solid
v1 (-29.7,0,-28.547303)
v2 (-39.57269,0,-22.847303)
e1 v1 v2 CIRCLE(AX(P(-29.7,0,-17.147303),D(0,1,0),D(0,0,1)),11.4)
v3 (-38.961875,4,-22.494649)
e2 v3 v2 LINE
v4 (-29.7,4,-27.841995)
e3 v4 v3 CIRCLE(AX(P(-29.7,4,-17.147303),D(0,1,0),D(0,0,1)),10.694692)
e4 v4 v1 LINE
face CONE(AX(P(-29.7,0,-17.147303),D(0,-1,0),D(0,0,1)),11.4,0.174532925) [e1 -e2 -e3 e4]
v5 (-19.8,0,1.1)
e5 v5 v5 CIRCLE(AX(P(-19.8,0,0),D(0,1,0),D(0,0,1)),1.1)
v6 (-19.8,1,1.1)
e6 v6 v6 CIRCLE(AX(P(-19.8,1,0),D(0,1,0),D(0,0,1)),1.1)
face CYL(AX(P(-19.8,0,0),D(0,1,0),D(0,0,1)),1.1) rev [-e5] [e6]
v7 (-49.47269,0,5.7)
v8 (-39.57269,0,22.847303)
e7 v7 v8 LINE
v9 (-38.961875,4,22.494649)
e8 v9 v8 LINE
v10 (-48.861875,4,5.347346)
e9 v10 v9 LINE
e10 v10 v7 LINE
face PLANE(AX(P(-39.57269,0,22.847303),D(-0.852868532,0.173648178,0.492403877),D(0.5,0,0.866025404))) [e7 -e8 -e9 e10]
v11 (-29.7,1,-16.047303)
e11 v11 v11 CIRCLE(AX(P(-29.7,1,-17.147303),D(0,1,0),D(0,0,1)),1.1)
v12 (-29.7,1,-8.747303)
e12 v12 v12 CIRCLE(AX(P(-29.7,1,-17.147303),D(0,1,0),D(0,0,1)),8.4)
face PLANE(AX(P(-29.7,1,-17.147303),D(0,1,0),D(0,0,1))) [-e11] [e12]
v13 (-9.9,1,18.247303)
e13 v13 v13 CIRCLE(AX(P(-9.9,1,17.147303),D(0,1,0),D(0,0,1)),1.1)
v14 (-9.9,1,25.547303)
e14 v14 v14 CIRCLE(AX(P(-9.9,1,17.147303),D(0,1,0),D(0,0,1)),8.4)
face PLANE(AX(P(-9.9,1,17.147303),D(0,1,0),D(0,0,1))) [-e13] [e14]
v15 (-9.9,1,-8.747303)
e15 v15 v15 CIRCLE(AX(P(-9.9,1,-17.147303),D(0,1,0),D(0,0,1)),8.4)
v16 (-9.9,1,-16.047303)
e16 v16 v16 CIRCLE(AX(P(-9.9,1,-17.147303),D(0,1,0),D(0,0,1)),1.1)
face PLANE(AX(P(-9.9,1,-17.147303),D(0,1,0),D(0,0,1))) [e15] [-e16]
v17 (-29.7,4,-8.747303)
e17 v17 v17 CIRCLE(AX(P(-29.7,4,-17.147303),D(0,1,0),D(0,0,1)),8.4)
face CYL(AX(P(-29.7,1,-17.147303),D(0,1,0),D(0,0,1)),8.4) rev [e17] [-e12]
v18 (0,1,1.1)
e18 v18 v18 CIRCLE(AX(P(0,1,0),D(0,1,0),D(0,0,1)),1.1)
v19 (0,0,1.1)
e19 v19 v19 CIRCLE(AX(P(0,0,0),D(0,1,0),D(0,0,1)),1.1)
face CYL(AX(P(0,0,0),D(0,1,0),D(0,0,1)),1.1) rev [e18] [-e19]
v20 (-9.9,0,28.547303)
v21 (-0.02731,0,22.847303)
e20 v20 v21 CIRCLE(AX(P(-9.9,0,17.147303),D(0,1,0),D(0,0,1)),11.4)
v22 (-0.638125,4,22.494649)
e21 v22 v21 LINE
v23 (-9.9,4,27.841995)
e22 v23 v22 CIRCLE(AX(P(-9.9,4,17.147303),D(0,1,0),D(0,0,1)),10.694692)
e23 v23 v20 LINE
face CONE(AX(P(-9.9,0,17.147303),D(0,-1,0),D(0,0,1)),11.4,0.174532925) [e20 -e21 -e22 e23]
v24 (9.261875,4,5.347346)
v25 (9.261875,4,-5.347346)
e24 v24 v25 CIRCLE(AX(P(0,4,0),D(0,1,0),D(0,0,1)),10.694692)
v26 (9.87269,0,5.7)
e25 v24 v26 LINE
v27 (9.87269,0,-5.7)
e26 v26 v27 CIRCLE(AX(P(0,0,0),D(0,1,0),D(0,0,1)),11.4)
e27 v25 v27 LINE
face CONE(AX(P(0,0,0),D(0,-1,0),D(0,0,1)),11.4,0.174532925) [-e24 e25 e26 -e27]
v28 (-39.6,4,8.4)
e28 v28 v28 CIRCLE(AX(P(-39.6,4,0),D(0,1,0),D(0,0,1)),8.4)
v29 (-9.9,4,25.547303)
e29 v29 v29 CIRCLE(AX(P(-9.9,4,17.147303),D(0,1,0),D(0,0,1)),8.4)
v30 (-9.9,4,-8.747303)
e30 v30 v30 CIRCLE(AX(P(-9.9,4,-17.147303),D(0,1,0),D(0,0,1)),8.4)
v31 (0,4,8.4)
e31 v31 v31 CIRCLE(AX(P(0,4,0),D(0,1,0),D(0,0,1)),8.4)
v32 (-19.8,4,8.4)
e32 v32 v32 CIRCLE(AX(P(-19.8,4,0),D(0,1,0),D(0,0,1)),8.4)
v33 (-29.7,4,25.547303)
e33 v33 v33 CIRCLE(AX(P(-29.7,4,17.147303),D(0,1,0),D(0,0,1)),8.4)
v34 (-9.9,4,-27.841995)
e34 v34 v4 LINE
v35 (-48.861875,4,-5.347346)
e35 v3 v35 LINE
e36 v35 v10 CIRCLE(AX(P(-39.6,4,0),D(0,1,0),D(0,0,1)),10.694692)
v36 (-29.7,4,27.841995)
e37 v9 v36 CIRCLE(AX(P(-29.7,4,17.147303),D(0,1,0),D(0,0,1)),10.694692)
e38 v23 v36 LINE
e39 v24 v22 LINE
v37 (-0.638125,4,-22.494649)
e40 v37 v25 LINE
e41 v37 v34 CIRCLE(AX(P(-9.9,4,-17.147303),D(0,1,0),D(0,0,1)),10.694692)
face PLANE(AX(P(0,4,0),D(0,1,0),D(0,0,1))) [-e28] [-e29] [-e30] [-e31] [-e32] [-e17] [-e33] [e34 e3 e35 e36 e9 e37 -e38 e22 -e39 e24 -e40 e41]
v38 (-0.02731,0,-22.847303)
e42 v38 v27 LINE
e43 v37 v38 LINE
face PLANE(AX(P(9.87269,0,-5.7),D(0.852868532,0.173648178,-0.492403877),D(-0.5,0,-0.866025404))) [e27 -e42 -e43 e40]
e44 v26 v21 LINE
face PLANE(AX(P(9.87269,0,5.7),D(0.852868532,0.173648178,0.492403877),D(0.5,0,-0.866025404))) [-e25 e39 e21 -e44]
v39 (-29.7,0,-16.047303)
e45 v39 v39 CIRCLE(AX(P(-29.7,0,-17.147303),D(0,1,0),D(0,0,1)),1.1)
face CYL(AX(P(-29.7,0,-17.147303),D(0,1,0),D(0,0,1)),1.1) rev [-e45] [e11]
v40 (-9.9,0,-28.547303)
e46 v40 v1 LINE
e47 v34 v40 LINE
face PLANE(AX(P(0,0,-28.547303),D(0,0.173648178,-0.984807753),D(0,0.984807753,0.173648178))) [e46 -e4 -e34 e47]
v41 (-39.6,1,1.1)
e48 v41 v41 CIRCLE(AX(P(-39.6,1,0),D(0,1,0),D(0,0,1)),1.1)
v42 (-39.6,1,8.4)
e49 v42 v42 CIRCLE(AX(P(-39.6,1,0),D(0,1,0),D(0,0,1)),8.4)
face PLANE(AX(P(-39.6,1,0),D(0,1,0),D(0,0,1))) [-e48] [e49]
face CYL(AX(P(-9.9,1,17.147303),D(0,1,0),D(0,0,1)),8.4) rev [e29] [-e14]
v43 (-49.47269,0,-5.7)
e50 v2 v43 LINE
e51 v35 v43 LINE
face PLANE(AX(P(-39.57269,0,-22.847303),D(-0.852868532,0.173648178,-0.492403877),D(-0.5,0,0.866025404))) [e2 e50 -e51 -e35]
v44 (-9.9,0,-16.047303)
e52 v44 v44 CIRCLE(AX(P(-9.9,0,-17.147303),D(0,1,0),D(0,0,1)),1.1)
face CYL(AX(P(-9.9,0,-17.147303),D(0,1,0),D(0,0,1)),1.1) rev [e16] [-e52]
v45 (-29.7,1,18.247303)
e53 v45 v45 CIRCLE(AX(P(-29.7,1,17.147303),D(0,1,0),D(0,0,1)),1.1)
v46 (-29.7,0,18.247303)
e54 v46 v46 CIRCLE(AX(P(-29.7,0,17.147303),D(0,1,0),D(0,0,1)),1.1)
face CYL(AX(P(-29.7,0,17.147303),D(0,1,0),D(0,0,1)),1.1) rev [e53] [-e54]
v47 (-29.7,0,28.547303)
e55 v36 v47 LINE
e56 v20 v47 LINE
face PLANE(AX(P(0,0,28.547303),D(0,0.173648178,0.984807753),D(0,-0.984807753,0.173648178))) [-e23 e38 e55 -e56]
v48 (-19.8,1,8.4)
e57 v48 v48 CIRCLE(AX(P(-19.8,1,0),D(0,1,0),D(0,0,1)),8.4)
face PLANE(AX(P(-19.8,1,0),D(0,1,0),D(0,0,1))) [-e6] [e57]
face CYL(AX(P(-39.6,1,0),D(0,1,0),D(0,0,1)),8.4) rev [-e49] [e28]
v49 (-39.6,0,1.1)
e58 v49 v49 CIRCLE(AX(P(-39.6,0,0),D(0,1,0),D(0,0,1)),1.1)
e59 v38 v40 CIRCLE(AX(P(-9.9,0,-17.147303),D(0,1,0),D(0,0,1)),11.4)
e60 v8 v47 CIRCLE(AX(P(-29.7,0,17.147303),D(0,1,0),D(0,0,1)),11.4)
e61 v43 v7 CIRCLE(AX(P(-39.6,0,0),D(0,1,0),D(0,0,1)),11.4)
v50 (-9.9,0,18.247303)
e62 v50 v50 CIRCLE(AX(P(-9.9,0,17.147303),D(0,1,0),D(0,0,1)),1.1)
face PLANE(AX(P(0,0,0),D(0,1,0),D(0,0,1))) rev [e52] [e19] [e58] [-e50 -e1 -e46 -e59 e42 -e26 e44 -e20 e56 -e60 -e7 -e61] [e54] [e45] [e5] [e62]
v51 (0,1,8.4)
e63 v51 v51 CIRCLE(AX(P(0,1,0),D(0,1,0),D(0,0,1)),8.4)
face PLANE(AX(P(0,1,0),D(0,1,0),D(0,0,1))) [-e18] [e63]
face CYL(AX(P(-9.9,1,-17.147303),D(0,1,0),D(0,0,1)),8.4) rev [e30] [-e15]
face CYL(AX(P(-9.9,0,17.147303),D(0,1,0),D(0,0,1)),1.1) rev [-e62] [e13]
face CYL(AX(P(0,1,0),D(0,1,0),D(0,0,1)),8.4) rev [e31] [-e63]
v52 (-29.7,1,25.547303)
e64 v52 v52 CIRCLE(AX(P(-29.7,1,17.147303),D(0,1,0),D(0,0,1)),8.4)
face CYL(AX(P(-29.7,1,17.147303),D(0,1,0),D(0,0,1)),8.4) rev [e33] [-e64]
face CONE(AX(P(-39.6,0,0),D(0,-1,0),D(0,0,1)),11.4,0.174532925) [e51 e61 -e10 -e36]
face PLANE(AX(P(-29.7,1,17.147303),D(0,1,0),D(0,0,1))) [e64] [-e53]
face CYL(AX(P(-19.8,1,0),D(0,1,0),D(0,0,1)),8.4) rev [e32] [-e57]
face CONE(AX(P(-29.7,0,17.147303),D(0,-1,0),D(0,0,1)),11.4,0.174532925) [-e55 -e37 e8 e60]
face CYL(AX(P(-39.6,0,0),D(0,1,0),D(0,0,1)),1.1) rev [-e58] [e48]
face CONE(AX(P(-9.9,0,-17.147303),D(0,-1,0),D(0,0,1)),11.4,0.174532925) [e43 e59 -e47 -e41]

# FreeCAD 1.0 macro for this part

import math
import FreeCAD as App
import Part
import Sketcher
Q = App.Units.Quantity

doc = App.newDocument("Part")
params = doc.addObject("Spreadsheet::Sheet", "Params")
for row, (alias, value) in enumerate([
    ("sketch1_radius", "11.4 mm"),
    ("sketch1_width", "19.8 mm"),
    ("sketch1_length", "19.8 mm"),
    ("pad1_length", "4 mm"),
    ("pad1_taper", "-10 deg"),
    ("sketch2_diameter", "2.2 mm"),
    ("pocket1_length", "4 mm"),
    ("sketch3_diameter", "16.8 mm"),
    ("sketch3_diameter2", "2.2 mm"),
    ("pocket2_length", "3 mm"),
], start=1):
    params.set(f"A{row}", alias)
    params.set(f"B{row}", "=" + value)
    params.setAlias(f"B{row}", alias)

body = doc.addObject("PartDesign::Body", "Body")

sketch1 = body.newObject("Sketcher::SketchObject", "Sketch")
sketch1.AttachmentSupport = (doc.getObject("XZ_Plane"), [""])
sketch1.MapMode = "FlatFace"
sketch1.addGeometry([
    Part.ArcOfCircle(Part.Circle(App.Vector(-30, -17, 0), App.Vector(0, 0, 1), 11), math.radians(-150), math.radians(-90)),
    Part.LineSegment(App.Vector(-40, -23, 0), App.Vector(-49, -6, 0)),
    Part.ArcOfCircle(Part.Circle(App.Vector(-40, 0, 0), App.Vector(0, 0, 1), 11), math.radians(150), math.radians(210)),
    Part.LineSegment(App.Vector(-49, 6, 0), App.Vector(-40, 23, 0)),
    Part.ArcOfCircle(Part.Circle(App.Vector(-30, 17, 0), App.Vector(0, 0, 1), 11), math.radians(90), math.radians(150)),
    Part.LineSegment(App.Vector(-30, 29, 0), App.Vector(-10, 29, 0)),
    Part.ArcOfCircle(Part.Circle(App.Vector(-10, 17, 0), App.Vector(0, 0, 1), 11), math.radians(30), math.radians(90)),
    Part.LineSegment(App.Vector(0, 23, 0), App.Vector(10, 6, 0)),
    Part.ArcOfCircle(Part.Circle(App.Vector(0, 0, 0), App.Vector(0, 0, 1), 11), math.radians(-30), math.radians(30)),
    Part.LineSegment(App.Vector(10, -6, 0), App.Vector(0, -23, 0)),
    Part.ArcOfCircle(Part.Circle(App.Vector(-10, -17, 0), App.Vector(0, 0, 1), 11), math.radians(-90), math.radians(-30)),
    Part.LineSegment(App.Vector(-10, -29, 0), App.Vector(-30, -29, 0)),
], False)
sketch1.addConstraint([
    Sketcher.Constraint("Tangent", 0, 1, 1, 1),
    Sketcher.Constraint("Tangent", 1, 2, 2, 2),
    Sketcher.Constraint("Tangent", 2, 1, 3, 1),
    Sketcher.Constraint("Tangent", 3, 2, 4, 2),
    Sketcher.Constraint("Tangent", 4, 1, 5, 1),
    Sketcher.Constraint("Tangent", 5, 2, 6, 2),
    Sketcher.Constraint("Tangent", 6, 1, 7, 1),
    Sketcher.Constraint("Tangent", 7, 2, 8, 2),
    Sketcher.Constraint("Tangent", 8, 1, 9, 1),
    Sketcher.Constraint("Tangent", 9, 2, 10, 2),
    Sketcher.Constraint("Tangent", 10, 1, 11, 1),
    Sketcher.Constraint("Tangent", 11, 2, 0, 2),
    Sketcher.Constraint("Horizontal", 5),
    Sketcher.Constraint("Horizontal", 11),
    Sketcher.Constraint("Coincident", 8, 3, -1, 1),
    Sketcher.Constraint("Equal", 0, 2),
    Sketcher.Constraint("Equal", 2, 4),
    Sketcher.Constraint("Equal", 4, 6),
    Sketcher.Constraint("Equal", 6, 8),
    Sketcher.Constraint("Equal", 8, 10),
    Sketcher.Constraint("Symmetric", 0, 3, 4, 3, -1),
    Sketcher.Constraint("PointOnObject", 2, 3, -1),
    Sketcher.Constraint("Parallel", 1, 7),
    Sketcher.Constraint("Parallel", 3, 9),
    Sketcher.Constraint("Radius", 0, Q("11.4 mm")),
    Sketcher.Constraint("Angle", 1, Q("120 deg")),
    Sketcher.Constraint("DistanceX", 5, 1, 5, 2, Q("19.8 mm")),
    Sketcher.Constraint("Distance", 1, Q("19.8 mm")),
])
sketch1.setExpression("Constraints[24]", "Params.sketch1_radius")
sketch1.setExpression("Constraints[26]", "Params.sketch1_width")
sketch1.setExpression("Constraints[27]", "Params.sketch1_length")
pad1 = body.newObject("PartDesign::Pad", "Pad")
pad1.Profile = sketch1
pad1.setExpression("Length", "Params.pad1_length")
pad1.Reversed = True
pad1.setExpression("TaperAngle", "Params.pad1_taper")

sketch2 = body.newObject("Sketcher::SketchObject", "Sketch001")
sketch2.AttachmentSupport = (doc.getObject("XZ_Plane"), [""])
sketch2.MapMode = "FlatFace"
sketch2.AttachmentOffset = App.Placement(App.Vector(0, 0, -4), App.Rotation())
sketch2.addGeometry([
    Part.Circle(App.Vector(-9.9, 17.1, 0), App.Vector(0, 0, 1), 1.1),
    Part.Circle(App.Vector(0, 0, 0), App.Vector(0, 0, 1), 1.1),
    Part.Circle(App.Vector(-29.7, 17.1, 0), App.Vector(0, 0, 1), 1.1),
    Part.Circle(App.Vector(-39.6, 0, 0), App.Vector(0, 0, 1), 1.1),
    Part.Circle(App.Vector(-9.9, -17.1, 0), App.Vector(0, 0, 1), 1.1),
    Part.Circle(App.Vector(-29.7, -17.1, 0), App.Vector(0, 0, 1), 1.1),
    Part.Circle(App.Vector(-19.8, 0, 0), App.Vector(0, 0, 1), 1.1),
], False)
sketch2.addConstraint([
    Sketcher.Constraint("Coincident", 1, 3, -1, 1),
    Sketcher.Constraint("Equal", 0, 1),
    Sketcher.Constraint("Equal", 1, 2),
    Sketcher.Constraint("Equal", 2, 3),
    Sketcher.Constraint("Equal", 3, 4),
    Sketcher.Constraint("Equal", 4, 5),
    Sketcher.Constraint("Equal", 5, 6),
    Sketcher.Constraint("Symmetric", 0, 3, 4, 3, -1),
    Sketcher.Constraint("Symmetric", 2, 3, 5, 3, -1),
    Sketcher.Constraint("PointOnObject", 3, 3, -1),
    Sketcher.Constraint("PointOnObject", 6, 3, -1),
    Sketcher.Constraint("Horizontal", 0, 3, 2, 3),
    Sketcher.Constraint("Diameter", 0, Q("2.2 mm")),
    Sketcher.Constraint("DistanceX", 0, 3, -1, 1, Q("9.9 mm")),
    Sketcher.Constraint("DistanceX", 2, 3, -1, 1, Q("29.7 mm")),
    Sketcher.Constraint("DistanceX", 3, 3, -1, 1, Q("39.6 mm")),
    Sketcher.Constraint("DistanceX", 6, 3, -1, 1, Q("19.8 mm")),
    Sketcher.Constraint("DistanceY", -1, 1, 0, 3, Q("17.147303 mm")),
])
sketch2.setExpression("Constraints[12]", "Params.sketch2_diameter")
pocket1 = body.newObject("PartDesign::Pocket", "Pocket")
pocket1.Profile = sketch2
pocket1.setExpression("Length", "Params.pocket1_length")
pocket1.Reversed = True

sketch3 = body.newObject("Sketcher::SketchObject", "Sketch002")
sketch3.AttachmentSupport = (doc.getObject("XZ_Plane"), [""])
sketch3.MapMode = "FlatFace"
sketch3.AttachmentOffset = App.Placement(App.Vector(0, 0, -4), App.Rotation())
sketch3.addGeometry([
    Part.Circle(App.Vector(-19.8, 0, 0), App.Vector(0, 0, 1), 8.4),
    Part.Circle(App.Vector(-19.8, 0, 0), App.Vector(0, 0, 1), 1.1),
    Part.Circle(App.Vector(-9.9, 17.1, 0), App.Vector(0, 0, 1), 8.4),
    Part.Circle(App.Vector(-9.9, 17.1, 0), App.Vector(0, 0, 1), 1.1),
    Part.Circle(App.Vector(0, 0, 0), App.Vector(0, 0, 1), 8.4),
    Part.Circle(App.Vector(0, 0, 0), App.Vector(0, 0, 1), 1.1),
    Part.Circle(App.Vector(-29.7, 17.1, 0), App.Vector(0, 0, 1), 8.4),
    Part.Circle(App.Vector(-29.7, 17.1, 0), App.Vector(0, 0, 1), 1.1),
    Part.Circle(App.Vector(-39.6, 0, 0), App.Vector(0, 0, 1), 8.4),
    Part.Circle(App.Vector(-39.6, 0, 0), App.Vector(0, 0, 1), 1.1),
    Part.Circle(App.Vector(-9.9, -17.1, 0), App.Vector(0, 0, 1), 8.4),
    Part.Circle(App.Vector(-9.9, -17.1, 0), App.Vector(0, 0, 1), 1.1),
    Part.Circle(App.Vector(-29.7, -17.1, 0), App.Vector(0, 0, 1), 8.4),
    Part.Circle(App.Vector(-29.7, -17.1, 0), App.Vector(0, 0, 1), 1.1),
], False)
sketch3.addConstraint([
    Sketcher.Constraint("Coincident", 4, 3, -1, 1),
    Sketcher.Constraint("Coincident", 5, 3, -1, 1),
    Sketcher.Constraint("Coincident", 1, 3, 0, 3),
    Sketcher.Constraint("Coincident", 3, 3, 2, 3),
    Sketcher.Constraint("Coincident", 7, 3, 6, 3),
    Sketcher.Constraint("Coincident", 9, 3, 8, 3),
    Sketcher.Constraint("Coincident", 11, 3, 10, 3),
    Sketcher.Constraint("Coincident", 13, 3, 12, 3),
    Sketcher.Constraint("Equal", 0, 2),
    Sketcher.Constraint("Equal", 1, 3),
    Sketcher.Constraint("Equal", 2, 4),
    Sketcher.Constraint("Equal", 3, 5),
    Sketcher.Constraint("Equal", 4, 6),
    Sketcher.Constraint("Equal", 5, 7),
    Sketcher.Constraint("Equal", 6, 8),
    Sketcher.Constraint("Equal", 7, 9),
    Sketcher.Constraint("Equal", 8, 10),
    Sketcher.Constraint("Equal", 9, 11),
    Sketcher.Constraint("Equal", 10, 12),
    Sketcher.Constraint("Equal", 11, 13),
    Sketcher.Constraint("Symmetric", 2, 3, 10, 3, -1),
    Sketcher.Constraint("Symmetric", 6, 3, 12, 3, -1),
    Sketcher.Constraint("PointOnObject", 0, 3, -1),
    Sketcher.Constraint("PointOnObject", 8, 3, -1),
    Sketcher.Constraint("Horizontal", 3, 3, 6, 3),
    Sketcher.Constraint("Diameter", 0, Q("16.8 mm")),
    Sketcher.Constraint("Diameter", 1, Q("2.2 mm")),
    Sketcher.Constraint("DistanceX", 0, 3, -1, 1, Q("19.8 mm")),
    Sketcher.Constraint("DistanceX", 2, 3, -1, 1, Q("9.9 mm")),
    Sketcher.Constraint("DistanceX", 6, 3, -1, 1, Q("29.7 mm")),
    Sketcher.Constraint("DistanceX", 8, 3, -1, 1, Q("39.6 mm")),
    Sketcher.Constraint("DistanceY", -1, 1, 2, 3, Q("17.147303 mm")),
])
sketch3.setExpression("Constraints[25]", "Params.sketch3_diameter")
sketch3.setExpression("Constraints[26]", "Params.sketch3_diameter2")
pocket2 = body.newObject("PartDesign::Pocket", "Pocket001")
pocket2.Profile = sketch3
pocket2.setExpression("Length", "Params.pocket2_length")
pocket2.Reversed = True

doc.recompute()
